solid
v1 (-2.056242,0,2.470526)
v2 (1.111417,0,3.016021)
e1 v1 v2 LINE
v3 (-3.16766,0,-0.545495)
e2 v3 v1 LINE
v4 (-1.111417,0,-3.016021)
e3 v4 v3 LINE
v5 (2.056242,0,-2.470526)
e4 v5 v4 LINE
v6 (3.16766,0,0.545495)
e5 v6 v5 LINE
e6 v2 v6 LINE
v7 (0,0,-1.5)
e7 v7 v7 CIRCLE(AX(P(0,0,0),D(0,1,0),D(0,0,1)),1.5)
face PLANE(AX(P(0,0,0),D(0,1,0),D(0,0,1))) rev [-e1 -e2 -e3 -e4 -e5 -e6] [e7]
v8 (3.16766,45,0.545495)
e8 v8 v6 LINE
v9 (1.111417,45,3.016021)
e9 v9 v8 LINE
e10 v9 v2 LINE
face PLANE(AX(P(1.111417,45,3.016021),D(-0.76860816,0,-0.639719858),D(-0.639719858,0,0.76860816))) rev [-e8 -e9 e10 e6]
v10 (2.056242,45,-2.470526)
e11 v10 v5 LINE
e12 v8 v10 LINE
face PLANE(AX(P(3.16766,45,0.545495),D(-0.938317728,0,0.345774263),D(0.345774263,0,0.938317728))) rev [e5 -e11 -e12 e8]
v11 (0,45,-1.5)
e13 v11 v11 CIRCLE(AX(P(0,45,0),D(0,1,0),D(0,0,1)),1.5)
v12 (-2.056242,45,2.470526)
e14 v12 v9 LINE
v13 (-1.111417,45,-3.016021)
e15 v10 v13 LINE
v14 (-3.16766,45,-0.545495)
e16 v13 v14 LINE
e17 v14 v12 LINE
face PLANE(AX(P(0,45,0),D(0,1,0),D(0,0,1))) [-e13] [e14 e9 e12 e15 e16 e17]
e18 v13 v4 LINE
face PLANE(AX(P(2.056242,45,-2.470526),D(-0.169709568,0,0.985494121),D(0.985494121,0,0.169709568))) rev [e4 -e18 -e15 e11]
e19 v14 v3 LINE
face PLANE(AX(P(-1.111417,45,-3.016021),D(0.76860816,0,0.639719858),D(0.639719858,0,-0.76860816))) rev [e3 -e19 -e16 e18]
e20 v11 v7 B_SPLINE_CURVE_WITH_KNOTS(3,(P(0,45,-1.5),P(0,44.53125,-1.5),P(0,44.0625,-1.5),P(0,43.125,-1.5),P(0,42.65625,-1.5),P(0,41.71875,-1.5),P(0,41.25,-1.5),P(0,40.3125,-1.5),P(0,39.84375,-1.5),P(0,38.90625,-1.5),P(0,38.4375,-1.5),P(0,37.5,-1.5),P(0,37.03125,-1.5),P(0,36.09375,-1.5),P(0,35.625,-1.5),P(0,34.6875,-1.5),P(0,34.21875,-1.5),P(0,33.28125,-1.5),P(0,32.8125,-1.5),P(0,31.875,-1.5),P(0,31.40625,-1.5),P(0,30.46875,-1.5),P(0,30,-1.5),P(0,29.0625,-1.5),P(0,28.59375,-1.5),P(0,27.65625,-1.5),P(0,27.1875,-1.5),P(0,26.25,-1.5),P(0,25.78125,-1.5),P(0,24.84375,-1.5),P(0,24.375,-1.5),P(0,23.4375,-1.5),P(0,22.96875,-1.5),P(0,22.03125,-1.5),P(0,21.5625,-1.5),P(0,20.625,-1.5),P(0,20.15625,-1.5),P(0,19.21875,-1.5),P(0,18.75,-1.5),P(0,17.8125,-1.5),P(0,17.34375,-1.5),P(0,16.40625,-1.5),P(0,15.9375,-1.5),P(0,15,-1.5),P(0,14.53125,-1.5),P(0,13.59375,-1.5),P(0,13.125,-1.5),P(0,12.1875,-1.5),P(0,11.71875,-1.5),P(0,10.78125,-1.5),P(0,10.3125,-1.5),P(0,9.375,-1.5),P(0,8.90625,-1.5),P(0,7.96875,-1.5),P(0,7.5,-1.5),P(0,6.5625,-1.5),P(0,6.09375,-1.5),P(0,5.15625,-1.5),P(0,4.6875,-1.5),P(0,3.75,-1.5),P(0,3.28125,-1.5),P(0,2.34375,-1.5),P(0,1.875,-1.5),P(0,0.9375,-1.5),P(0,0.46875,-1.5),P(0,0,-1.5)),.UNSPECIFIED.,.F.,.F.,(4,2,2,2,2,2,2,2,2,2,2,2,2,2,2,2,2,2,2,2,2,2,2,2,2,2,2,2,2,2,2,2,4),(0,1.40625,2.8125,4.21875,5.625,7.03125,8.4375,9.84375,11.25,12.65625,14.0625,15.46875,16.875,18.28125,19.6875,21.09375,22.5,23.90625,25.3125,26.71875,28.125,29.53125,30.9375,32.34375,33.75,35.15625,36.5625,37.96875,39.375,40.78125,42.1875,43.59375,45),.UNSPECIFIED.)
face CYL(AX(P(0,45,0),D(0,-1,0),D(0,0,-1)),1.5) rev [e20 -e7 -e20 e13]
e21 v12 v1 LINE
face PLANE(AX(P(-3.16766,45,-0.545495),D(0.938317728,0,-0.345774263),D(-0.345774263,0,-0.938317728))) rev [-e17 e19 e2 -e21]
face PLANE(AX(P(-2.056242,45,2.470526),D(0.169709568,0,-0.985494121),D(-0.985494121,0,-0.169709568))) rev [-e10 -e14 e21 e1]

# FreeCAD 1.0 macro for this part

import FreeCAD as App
import Part
import Sketcher
Q = App.Units.Quantity


def add_polygon(sketch, points):
    """Adds a closed chain of lines whose ends are joined by coincident constraints."""
    first, n = sketch.GeometryCount, len(points)
    for a, b in zip(points, points[1:] + points[:1]):
        sketch.addGeometry(Part.LineSegment(App.Vector(*a, 0), App.Vector(*b, 0)), False)
    for i in range(n):
        sketch.addConstraint(Sketcher.Constraint("Coincident", first + i, 2, first + (i + 1) % n, 1))

doc = App.newDocument("Part")
body = doc.addObject("PartDesign::Body", "Body")

# Sketch on XZ plane
sketch1 = body.newObject("Sketcher::SketchObject", "Sketch")
sketch1.AttachmentSupport = (doc.getObject("XZ_Plane"), [""])
sketch1.MapMode = "FlatFace"
add_polygon(sketch1, [(1.111417, 3.016021), (3.16766, 0.545495), (2.056242, -2.470526), (-1.111417, -3.016021), (-3.16766, -0.545495), (-2.056242, 2.470526)])  # lines 0-5
sketch1.addGeometry(Part.Circle(App.Vector(0, 0, 0), App.Vector(0, 0, 1), 1.5), False)  # 6
sketch1.addConstraint([
    Sketcher.Constraint("Coincident", 6, 3, -1, 1),
    Sketcher.Constraint("Symmetric", 0, 2, 3, 2, -1, 1),
    Sketcher.Constraint("Symmetric", 1, 2, 4, 2, -1, 1),
    Sketcher.Constraint("Symmetric", 2, 2, 5, 2, -1, 1),
    Sketcher.Constraint("Equal", 0, 1),
    Sketcher.Constraint("Equal", 1, 2),
    Sketcher.Constraint("Diameter", 6, Q("3 mm")),
    Sketcher.Constraint("DistanceX", -1, 1, 0, 2, Q("3.16766 mm")),
    Sketcher.Constraint("DistanceY", 2, 2, -1, 1, Q("3.016021 mm")),
    Sketcher.Constraint("DistanceY", 1, 2, 0, 2, Q("3.016021 mm")),
    Sketcher.Constraint("DistanceX", 2, 2, 1, 2, Q("3.16766 mm")),
])
pad1 = body.newObject("PartDesign::Pad", "Pad")
pad1.Profile = sketch1
pad1.Length = 45
pad1.Reversed = True

doc.recompute()
